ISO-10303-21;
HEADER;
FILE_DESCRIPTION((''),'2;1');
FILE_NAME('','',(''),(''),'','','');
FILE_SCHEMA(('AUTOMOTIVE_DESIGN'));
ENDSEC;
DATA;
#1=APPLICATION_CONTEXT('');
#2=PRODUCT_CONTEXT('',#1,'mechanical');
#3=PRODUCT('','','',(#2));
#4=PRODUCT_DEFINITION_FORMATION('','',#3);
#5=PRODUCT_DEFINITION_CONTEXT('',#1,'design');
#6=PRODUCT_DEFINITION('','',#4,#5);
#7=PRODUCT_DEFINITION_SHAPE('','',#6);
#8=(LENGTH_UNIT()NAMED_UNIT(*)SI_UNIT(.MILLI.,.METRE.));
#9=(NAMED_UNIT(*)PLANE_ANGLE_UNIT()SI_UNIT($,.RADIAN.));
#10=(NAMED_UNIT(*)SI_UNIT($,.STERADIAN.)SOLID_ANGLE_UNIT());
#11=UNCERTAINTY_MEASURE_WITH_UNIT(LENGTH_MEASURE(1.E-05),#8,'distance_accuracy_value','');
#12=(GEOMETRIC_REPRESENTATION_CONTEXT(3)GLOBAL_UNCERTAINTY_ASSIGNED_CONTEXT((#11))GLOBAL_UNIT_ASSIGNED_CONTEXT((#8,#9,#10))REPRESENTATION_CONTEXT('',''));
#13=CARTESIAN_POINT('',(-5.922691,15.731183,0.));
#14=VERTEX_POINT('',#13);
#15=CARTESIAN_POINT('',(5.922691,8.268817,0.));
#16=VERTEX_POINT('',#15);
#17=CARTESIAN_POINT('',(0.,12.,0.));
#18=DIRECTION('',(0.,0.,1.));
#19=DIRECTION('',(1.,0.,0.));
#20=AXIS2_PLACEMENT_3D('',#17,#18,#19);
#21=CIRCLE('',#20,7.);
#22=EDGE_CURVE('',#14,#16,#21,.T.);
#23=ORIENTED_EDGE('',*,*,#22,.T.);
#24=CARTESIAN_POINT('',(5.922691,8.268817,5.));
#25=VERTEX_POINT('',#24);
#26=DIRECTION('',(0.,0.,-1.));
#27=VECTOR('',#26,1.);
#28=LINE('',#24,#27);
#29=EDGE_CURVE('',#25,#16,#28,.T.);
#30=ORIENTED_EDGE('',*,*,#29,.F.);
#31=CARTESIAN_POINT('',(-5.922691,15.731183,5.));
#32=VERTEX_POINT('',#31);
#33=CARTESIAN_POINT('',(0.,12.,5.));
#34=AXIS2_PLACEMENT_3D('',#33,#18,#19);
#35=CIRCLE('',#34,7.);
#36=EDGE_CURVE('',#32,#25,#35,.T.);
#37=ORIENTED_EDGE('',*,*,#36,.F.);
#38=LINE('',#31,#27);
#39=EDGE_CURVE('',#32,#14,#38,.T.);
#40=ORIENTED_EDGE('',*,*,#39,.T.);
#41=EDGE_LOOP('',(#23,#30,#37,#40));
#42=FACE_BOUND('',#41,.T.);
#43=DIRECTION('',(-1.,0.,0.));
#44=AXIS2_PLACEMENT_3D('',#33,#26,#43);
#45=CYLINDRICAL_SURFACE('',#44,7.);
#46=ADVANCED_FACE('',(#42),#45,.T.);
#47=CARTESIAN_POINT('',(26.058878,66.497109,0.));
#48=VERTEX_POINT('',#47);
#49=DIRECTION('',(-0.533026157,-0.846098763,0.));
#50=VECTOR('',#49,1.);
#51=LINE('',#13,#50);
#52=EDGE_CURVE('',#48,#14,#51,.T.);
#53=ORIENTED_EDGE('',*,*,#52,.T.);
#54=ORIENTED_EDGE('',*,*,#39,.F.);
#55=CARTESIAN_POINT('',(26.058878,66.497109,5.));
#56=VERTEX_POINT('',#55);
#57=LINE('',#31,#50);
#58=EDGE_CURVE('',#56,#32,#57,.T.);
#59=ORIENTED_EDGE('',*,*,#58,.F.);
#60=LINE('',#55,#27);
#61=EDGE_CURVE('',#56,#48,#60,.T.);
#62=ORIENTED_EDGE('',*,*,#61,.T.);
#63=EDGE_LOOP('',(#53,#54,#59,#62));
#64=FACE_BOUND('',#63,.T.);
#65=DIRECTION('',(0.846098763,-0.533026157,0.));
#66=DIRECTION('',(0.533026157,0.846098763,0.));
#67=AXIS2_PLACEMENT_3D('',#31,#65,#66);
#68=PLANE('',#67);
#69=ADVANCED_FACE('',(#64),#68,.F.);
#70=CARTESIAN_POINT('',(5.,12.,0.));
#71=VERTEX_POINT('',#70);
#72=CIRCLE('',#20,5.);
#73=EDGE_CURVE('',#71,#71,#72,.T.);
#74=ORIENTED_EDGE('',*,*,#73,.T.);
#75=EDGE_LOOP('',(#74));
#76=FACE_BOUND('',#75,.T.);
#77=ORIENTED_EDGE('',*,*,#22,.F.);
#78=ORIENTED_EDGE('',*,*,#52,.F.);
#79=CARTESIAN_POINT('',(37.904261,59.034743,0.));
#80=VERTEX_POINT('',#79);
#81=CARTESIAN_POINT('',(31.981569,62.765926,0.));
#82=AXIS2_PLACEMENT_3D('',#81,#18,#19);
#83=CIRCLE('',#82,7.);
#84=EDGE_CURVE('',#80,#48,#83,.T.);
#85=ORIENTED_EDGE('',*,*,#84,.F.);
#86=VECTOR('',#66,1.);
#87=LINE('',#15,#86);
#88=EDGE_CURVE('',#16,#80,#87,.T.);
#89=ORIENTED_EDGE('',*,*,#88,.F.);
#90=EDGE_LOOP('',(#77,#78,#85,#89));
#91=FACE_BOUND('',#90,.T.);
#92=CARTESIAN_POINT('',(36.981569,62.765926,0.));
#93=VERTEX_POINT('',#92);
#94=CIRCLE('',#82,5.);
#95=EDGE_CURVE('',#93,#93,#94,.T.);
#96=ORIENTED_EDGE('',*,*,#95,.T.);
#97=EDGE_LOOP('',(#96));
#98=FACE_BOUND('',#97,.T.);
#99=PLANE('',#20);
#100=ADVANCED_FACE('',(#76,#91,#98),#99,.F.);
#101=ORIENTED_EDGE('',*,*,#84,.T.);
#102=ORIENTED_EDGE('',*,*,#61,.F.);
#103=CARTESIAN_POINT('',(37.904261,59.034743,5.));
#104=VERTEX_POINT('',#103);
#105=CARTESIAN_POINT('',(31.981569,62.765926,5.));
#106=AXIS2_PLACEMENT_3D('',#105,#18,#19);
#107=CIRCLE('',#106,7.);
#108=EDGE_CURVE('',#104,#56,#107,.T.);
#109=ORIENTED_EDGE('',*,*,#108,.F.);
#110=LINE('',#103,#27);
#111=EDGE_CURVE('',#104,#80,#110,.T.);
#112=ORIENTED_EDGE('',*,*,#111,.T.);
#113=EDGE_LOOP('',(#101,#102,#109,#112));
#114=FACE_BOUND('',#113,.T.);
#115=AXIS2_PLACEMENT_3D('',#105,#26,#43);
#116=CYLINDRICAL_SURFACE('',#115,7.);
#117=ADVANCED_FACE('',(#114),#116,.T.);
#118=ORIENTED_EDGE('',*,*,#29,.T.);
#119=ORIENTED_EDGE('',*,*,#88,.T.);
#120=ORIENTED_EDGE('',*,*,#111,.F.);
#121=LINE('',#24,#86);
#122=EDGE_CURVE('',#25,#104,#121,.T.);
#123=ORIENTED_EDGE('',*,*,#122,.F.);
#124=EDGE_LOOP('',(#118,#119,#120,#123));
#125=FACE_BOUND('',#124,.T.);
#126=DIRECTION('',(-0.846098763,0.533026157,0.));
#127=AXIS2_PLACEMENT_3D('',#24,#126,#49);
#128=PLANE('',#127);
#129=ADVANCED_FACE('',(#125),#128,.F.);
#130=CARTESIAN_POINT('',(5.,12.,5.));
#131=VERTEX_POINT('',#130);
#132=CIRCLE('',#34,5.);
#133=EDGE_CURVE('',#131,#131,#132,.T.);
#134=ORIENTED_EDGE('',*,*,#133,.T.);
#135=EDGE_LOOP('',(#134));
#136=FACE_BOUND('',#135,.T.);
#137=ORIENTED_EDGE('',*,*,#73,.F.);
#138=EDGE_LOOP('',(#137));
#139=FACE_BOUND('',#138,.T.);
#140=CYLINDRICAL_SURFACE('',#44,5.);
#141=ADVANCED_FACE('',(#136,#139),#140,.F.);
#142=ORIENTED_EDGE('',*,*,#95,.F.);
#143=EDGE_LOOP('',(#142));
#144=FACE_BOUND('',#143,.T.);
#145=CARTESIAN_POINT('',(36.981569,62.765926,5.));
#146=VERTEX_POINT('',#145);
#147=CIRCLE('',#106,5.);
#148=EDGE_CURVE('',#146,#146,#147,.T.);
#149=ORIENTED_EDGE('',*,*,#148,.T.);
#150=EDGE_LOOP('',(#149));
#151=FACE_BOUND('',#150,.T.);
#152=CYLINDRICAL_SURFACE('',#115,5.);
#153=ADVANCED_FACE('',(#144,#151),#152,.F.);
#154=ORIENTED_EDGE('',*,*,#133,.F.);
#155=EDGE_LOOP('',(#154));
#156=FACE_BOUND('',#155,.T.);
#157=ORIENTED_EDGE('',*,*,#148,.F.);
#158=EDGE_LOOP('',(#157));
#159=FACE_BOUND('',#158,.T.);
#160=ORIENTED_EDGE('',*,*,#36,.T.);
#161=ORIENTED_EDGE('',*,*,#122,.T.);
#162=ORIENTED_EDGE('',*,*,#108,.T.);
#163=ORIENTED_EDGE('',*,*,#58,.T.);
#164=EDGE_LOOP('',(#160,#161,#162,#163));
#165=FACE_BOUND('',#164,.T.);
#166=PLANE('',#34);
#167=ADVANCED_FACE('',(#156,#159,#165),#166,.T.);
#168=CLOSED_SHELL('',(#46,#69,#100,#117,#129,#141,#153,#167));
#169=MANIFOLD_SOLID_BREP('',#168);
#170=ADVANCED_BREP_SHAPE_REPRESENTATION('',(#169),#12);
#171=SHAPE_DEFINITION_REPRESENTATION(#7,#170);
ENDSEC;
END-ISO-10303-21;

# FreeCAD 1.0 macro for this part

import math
import FreeCAD as App
import Part
import Sketcher

V = App.Vector

doc = App.newDocument("Part")
body = doc.addObject("PartDesign::Body", "Body")

# Sketch on XY plane
sketch1 = body.newObject("Sketcher::SketchObject", "Sketch")
sketch1.AttachmentSupport = (doc.getObject("XY_Plane"), [""])
sketch1.MapMode = "FlatFace"
sketch1.addGeometry(Part.LineSegment(V(26, 66, 0), V(-6, 16, 0)), False)
sketch1.addGeometry(Part.ArcOfCircle(Part.Circle(V(0, 12, 0), V(0, 0, 1), 7), math.radians(148), math.radians(328)), False)
sketch1.addGeometry(Part.LineSegment(V(6, 8, 0), V(38, 59, 0)), False)
sketch1.addGeometry(Part.ArcOfCircle(Part.Circle(V(32, 63, 0), V(0, 0, 1), 7), math.radians(-32), math.radians(148)), False)
sketch1.addGeometry(Part.Circle(V(0, 12, 0), V(0, 0, 1), 5), False)
sketch1.addGeometry(Part.Circle(V(32, 63, 0), V(0, 0, 1), 5), False)
sketch1.addConstraint(Sketcher.Constraint("Tangent", 0, 2, 1, 1))
sketch1.addConstraint(Sketcher.Constraint("Tangent", 1, 2, 2, 1))
sketch1.addConstraint(Sketcher.Constraint("Tangent", 2, 2, 3, 1))
sketch1.addConstraint(Sketcher.Constraint("Tangent", 3, 2, 0, 1))
sketch1.addConstraint(Sketcher.Constraint("Coincident", 4, 3, 1, 3))
sketch1.addConstraint(Sketcher.Constraint("Coincident", 5, 3, 3, 3))
sketch1.addConstraint(Sketcher.Constraint("Equal", 1, 3))
sketch1.addConstraint(Sketcher.Constraint("Equal", 4, 5))
sketch1.addConstraint(Sketcher.Constraint("PointOnObject", 1, 3, -2))
sketch1.addConstraint(Sketcher.Constraint("Diameter", 4, 10.0))
sketch1.addConstraint(Sketcher.Constraint("Radius", 1, 7.0))
sketch1.addConstraint(Sketcher.Constraint("Distance", 0, 60.0))
sketch1.addConstraint(Sketcher.Constraint("DistanceY", -1, 1, 1, 3, 12.0))
sketch1.addConstraint(Sketcher.Constraint("DistanceX", -1, 1, 3, 3, 31.981569))
pad1 = body.newObject("PartDesign::Pad", "Pad")
pad1.Profile = sketch1
pad1.Length = 5

doc.recompute()
